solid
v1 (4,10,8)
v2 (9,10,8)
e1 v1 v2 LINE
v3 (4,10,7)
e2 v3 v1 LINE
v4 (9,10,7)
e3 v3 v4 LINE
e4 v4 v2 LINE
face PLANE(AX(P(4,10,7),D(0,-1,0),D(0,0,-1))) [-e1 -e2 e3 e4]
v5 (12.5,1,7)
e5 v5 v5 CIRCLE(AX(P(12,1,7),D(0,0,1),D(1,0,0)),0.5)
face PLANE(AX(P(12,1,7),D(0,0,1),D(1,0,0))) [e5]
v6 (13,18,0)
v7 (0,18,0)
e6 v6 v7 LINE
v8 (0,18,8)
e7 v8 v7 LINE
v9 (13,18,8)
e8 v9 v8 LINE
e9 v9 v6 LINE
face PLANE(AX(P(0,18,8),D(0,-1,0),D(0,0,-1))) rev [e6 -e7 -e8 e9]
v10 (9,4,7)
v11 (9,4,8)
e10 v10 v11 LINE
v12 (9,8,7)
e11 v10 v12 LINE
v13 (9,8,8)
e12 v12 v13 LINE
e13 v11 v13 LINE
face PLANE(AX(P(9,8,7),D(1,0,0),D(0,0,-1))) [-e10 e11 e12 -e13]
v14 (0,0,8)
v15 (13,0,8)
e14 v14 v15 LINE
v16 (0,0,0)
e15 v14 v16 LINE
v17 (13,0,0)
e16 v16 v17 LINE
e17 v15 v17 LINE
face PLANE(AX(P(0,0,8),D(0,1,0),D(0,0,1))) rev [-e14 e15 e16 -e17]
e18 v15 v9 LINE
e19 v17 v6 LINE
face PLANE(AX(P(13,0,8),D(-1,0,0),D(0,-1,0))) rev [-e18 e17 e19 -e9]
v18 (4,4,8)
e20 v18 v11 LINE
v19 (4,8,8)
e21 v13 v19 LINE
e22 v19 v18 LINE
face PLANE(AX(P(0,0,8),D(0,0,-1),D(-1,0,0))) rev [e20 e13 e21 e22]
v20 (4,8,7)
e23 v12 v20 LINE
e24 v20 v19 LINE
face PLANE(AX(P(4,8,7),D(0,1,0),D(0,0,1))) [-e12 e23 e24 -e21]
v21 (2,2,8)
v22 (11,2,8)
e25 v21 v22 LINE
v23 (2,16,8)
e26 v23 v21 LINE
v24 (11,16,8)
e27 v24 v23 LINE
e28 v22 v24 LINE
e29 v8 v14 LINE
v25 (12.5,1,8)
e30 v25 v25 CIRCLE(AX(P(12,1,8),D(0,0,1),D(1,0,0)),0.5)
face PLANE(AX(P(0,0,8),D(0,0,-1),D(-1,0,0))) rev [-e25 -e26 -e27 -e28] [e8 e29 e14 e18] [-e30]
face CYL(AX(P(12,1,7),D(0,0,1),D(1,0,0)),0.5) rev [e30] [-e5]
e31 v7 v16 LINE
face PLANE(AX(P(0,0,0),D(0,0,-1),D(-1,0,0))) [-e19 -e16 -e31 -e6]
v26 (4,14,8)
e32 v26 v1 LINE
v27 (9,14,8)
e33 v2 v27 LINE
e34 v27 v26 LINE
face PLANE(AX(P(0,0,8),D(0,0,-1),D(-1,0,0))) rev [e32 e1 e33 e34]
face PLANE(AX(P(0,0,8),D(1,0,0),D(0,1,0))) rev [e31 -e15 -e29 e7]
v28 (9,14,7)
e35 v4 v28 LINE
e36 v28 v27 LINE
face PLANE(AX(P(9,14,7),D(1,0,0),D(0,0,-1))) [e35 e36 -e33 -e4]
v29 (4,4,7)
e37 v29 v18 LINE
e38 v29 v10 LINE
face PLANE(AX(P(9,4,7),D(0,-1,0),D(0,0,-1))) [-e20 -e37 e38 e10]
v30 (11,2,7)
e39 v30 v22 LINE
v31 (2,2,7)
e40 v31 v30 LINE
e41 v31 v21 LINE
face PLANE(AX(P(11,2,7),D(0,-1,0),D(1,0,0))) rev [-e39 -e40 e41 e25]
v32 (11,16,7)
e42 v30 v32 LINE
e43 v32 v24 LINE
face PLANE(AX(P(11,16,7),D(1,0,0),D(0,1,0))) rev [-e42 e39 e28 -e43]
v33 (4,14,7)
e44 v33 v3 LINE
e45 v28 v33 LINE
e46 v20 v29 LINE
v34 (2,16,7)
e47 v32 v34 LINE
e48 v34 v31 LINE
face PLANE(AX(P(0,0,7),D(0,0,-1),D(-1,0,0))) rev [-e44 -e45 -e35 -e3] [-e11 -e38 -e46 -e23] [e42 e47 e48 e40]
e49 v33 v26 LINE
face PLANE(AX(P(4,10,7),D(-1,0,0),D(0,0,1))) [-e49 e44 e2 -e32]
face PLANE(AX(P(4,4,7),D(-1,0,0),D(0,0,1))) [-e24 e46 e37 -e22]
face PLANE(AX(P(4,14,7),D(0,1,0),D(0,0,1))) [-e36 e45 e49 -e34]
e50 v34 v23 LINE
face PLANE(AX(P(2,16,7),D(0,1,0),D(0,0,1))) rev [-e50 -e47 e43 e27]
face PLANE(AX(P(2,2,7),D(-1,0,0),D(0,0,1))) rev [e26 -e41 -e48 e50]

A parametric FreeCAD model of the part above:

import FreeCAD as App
import Part
import Sketcher
from FreeCAD import Vector
Q = App.Units.Quantity

doc = App.newDocument("Part")
body = doc.addObject("PartDesign::Body", "Body")

sketch1 = body.newObject("Sketcher::SketchObject", "Sketch")
sketch1.AttachmentSupport = (doc.getObject("XY_Plane"), [""])
sketch1.MapMode = "FlatFace"
sketch1.addGeometry(Part.LineSegment(Vector(0, 18, 0), Vector(0, 0, 0)), False)
sketch1.addGeometry(Part.LineSegment(Vector(0, 0, 0), Vector(13, 0, 0)), False)
sketch1.addGeometry(Part.LineSegment(Vector(13, 0, 0), Vector(13, 18, 0)), False)
sketch1.addGeometry(Part.LineSegment(Vector(13, 18, 0), Vector(0, 18, 0)), False)
sketch1.addConstraint(Sketcher.Constraint("Coincident", 0, 2, 1, 1))
sketch1.addConstraint(Sketcher.Constraint("Coincident", 1, 2, 2, 1))
sketch1.addConstraint(Sketcher.Constraint("Coincident", 2, 2, 3, 1))
sketch1.addConstraint(Sketcher.Constraint("Coincident", 3, 2, 0, 1))
sketch1.addConstraint(Sketcher.Constraint("Vertical", 0))
sketch1.addConstraint(Sketcher.Constraint("Horizontal", 1))
sketch1.addConstraint(Sketcher.Constraint("Vertical", 2))
sketch1.addConstraint(Sketcher.Constraint("Horizontal", 3))
sketch1.addConstraint(Sketcher.Constraint("Coincident", 0, 2, -1, 1))
sketch1.addConstraint(Sketcher.Constraint("DistanceX", 1, 1, 1, 2, Q("13 mm")))
sketch1.addConstraint(Sketcher.Constraint("DistanceY", 0, 2, 0, 1, Q("18 mm")))
pad1 = body.newObject("PartDesign::Pad", "Pad")
pad1.Profile = sketch1
pad1.Length = 8

sketch2 = body.newObject("Sketcher::SketchObject", "Sketch001")
sketch2.AttachmentSupport = (doc.getObject("XY_Plane"), [""])
sketch2.MapMode = "FlatFace"
sketch2.AttachmentOffset = App.Placement(Vector(0, 0, 8), App.Rotation())
sketch2.addGeometry(Part.Circle(Vector(12, 1, 0), Vector(0, 0, 1), 0.5), False)
sketch2.addGeometry(Part.LineSegment(Vector(2, 16, 0), Vector(2, 2, 0)), False)
sketch2.addGeometry(Part.LineSegment(Vector(2, 2, 0), Vector(11, 2, 0)), False)
sketch2.addGeometry(Part.LineSegment(Vector(11, 2, 0), Vector(11, 16, 0)), False)
sketch2.addGeometry(Part.LineSegment(Vector(11, 16, 0), Vector(2, 16, 0)), False)
sketch2.addGeometry(Part.LineSegment(Vector(9, 4, 0), Vector(4, 4, 0)), False)
sketch2.addGeometry(Part.LineSegment(Vector(4, 4, 0), Vector(4, 8, 0)), False)
sketch2.addGeometry(Part.LineSegment(Vector(4, 8, 0), Vector(9, 8, 0)), False)
sketch2.addGeometry(Part.LineSegment(Vector(9, 8, 0), Vector(9, 4, 0)), False)
sketch2.addGeometry(Part.LineSegment(Vector(9, 10, 0), Vector(4, 10, 0)), False)
sketch2.addGeometry(Part.LineSegment(Vector(4, 10, 0), Vector(4, 14, 0)), False)
sketch2.addGeometry(Part.LineSegment(Vector(4, 14, 0), Vector(9, 14, 0)), False)
sketch2.addGeometry(Part.LineSegment(Vector(9, 14, 0), Vector(9, 10, 0)), False)
sketch2.addConstraint(Sketcher.Constraint("Coincident", 1, 2, 2, 1))
sketch2.addConstraint(Sketcher.Constraint("Coincident", 2, 2, 3, 1))
sketch2.addConstraint(Sketcher.Constraint("Coincident", 3, 2, 4, 1))
sketch2.addConstraint(Sketcher.Constraint("Coincident", 4, 2, 1, 1))
sketch2.addConstraint(Sketcher.Constraint("Coincident", 5, 2, 6, 1))
sketch2.addConstraint(Sketcher.Constraint("Coincident", 6, 2, 7, 1))
sketch2.addConstraint(Sketcher.Constraint("Coincident", 7, 2, 8, 1))
sketch2.addConstraint(Sketcher.Constraint("Coincident", 8, 2, 5, 1))
sketch2.addConstraint(Sketcher.Constraint("Coincident", 9, 2, 10, 1))
sketch2.addConstraint(Sketcher.Constraint("Coincident", 10, 2, 11, 1))
sketch2.addConstraint(Sketcher.Constraint("Coincident", 11, 2, 12, 1))
sketch2.addConstraint(Sketcher.Constraint("Coincident", 12, 2, 9, 1))
sketch2.addConstraint(Sketcher.Constraint("Vertical", 1))
sketch2.addConstraint(Sketcher.Constraint("Horizontal", 2))
sketch2.addConstraint(Sketcher.Constraint("Vertical", 3))
sketch2.addConstraint(Sketcher.Constraint("Horizontal", 4))
sketch2.addConstraint(Sketcher.Constraint("Horizontal", 5))
sketch2.addConstraint(Sketcher.Constraint("Vertical", 6))
sketch2.addConstraint(Sketcher.Constraint("Horizontal", 7))
sketch2.addConstraint(Sketcher.Constraint("Vertical", 8))
sketch2.addConstraint(Sketcher.Constraint("Horizontal", 9))
sketch2.addConstraint(Sketcher.Constraint("Vertical", 10))
sketch2.addConstraint(Sketcher.Constraint("Horizontal", 11))
sketch2.addConstraint(Sketcher.Constraint("Vertical", 12))
sketch2.addConstraint(Sketcher.Constraint("Vertical", 6, 2, 9, 2))
sketch2.addConstraint(Sketcher.Constraint("Vertical", 8, 2, 11, 2))
sketch2.addConstraint(Sketcher.Constraint("Equal", 8, 10))
sketch2.addConstraint(Sketcher.Constraint("Diameter", 0, Q("1 mm")))
sketch2.addConstraint(Sketcher.Constraint("DistanceX", 2, 1, 2, 2, Q("9 mm")))
sketch2.addConstraint(Sketcher.Constraint("DistanceX", 5, 2, 5, 1, Q("5 mm")))
sketch2.addConstraint(Sketcher.Constraint("DistanceY", 1, 2, 1, 1, Q("14 mm")))
sketch2.addConstraint(Sketcher.Constraint("DistanceY", 6, 1, 6, 2, Q("4 mm")))
sketch2.addConstraint(Sketcher.Constraint("DistanceX", -1, 1, 0, 3, Q("12 mm")))
sketch2.addConstraint(Sketcher.Constraint("DistanceY", -1, 1, 0, 3, Q("1 mm")))
sketch2.addConstraint(Sketcher.Constraint("DistanceX", -1, 1, 1, 2, Q("2 mm")))
sketch2.addConstraint(Sketcher.Constraint("DistanceY", -1, 1, 1, 2, Q("2 mm")))
sketch2.addConstraint(Sketcher.Constraint("DistanceX", -1, 1, 5, 2, Q("4 mm")))
sketch2.addConstraint(Sketcher.Constraint("DistanceY", -1, 1, 5, 2, Q("4 mm")))
sketch2.addConstraint(Sketcher.Constraint("DistanceY", -1, 1, 9, 2, Q("10 mm")))
pocket1 = body.newObject("PartDesign::Pocket", "Pocket")
pocket1.Profile = sketch2
pocket1.Length = 1

doc.recompute()
